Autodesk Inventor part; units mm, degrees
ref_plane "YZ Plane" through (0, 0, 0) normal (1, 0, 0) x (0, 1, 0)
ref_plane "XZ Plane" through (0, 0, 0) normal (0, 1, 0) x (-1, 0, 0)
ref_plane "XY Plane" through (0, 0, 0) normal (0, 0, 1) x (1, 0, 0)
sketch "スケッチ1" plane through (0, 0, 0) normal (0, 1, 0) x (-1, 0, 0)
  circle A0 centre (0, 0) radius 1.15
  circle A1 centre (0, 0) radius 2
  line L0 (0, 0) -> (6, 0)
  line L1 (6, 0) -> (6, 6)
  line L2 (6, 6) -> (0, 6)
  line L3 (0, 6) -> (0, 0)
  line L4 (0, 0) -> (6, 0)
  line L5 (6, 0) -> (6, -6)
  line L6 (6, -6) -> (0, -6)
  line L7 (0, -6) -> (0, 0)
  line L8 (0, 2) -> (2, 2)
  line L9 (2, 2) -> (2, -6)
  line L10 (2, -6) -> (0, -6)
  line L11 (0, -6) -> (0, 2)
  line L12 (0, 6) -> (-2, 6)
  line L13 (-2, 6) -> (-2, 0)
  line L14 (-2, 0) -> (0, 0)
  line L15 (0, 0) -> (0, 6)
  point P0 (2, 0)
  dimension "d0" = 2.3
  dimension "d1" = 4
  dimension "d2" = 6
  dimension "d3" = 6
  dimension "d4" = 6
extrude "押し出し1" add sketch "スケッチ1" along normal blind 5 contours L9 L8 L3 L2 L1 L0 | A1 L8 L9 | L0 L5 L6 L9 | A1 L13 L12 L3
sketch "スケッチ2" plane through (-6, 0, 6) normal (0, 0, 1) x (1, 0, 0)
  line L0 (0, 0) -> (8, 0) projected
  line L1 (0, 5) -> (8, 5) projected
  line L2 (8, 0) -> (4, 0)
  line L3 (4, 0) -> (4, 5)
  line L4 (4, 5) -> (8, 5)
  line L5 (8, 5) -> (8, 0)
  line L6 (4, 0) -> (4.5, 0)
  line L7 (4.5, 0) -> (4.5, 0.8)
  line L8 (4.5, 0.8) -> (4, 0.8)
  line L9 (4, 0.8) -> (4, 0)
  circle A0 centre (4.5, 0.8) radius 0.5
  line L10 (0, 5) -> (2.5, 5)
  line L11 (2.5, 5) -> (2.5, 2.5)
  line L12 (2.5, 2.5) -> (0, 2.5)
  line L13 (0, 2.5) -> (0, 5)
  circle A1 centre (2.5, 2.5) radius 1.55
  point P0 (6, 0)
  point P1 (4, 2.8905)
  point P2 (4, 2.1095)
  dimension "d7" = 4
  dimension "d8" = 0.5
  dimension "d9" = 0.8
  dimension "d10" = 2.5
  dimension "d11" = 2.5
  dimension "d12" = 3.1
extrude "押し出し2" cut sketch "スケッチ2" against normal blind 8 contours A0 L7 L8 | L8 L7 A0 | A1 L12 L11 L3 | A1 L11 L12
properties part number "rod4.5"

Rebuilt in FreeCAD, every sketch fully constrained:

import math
import FreeCAD as App
import Part
import Sketcher
from FreeCAD import Vector
Q = App.Units.Quantity

doc = App.newDocument("Part")
body = doc.addObject("PartDesign::Body", "Body")

# Sketch on XZ plane
sketch1 = doc.addObject("Sketcher::SketchObject", "Sketch")
body.addObject(sketch1)
sketch1.AttachmentSupport = (doc.XZ_Plane, [""])
sketch1.MapMode = "FlatFace"
sketch1.addGeometry([
    Part.LineSegment(Vector(-6, 6, 0), Vector(2, 6, 0)),  # 0
    Part.LineSegment(Vector(2, 6, 0), Vector(2, 0, 0)),  # 1
    Part.ArcOfCircle(Part.Circle(Vector(0, 0, 0), Vector(0, 0, 1), 2), math.radians(0), math.radians(180)),  # 2
    Part.LineSegment(Vector(-2, 0, 0), Vector(-2, -6, 0)),  # 3
    Part.LineSegment(Vector(-2, -6, 0), Vector(-6, -6, 0)),  # 4
    Part.LineSegment(Vector(-6, -6, 0), Vector(-6, 6, 0)),  # 5
], False)
sketch1.addConstraint([
    Sketcher.Constraint("Coincident", 0, 2, 1, 1),
    Sketcher.Constraint("Tangent", 1, 2, 2, 1),
    Sketcher.Constraint("Tangent", 2, 2, 3, 1),
    Sketcher.Constraint("Coincident", 3, 2, 4, 1),
    Sketcher.Constraint("Coincident", 4, 2, 5, 1),
    Sketcher.Constraint("Coincident", 5, 2, 0, 1),
    Sketcher.Constraint("Horizontal", 0),
    Sketcher.Constraint("Vertical", 1),
    Sketcher.Constraint("Vertical", 3),
    Sketcher.Constraint("Horizontal", 4),
    Sketcher.Constraint("Vertical", 5),
    Sketcher.Constraint("Coincident", 2, 3, -1, 1),
    Sketcher.Constraint("Equal", 1, 3),
    Sketcher.Constraint("Radius", 2, Q("2 mm")),
    Sketcher.Constraint("DistanceX", 4, 2, 4, 1, Q("4 mm")),
    Sketcher.Constraint("DistanceY", 1, 2, 1, 1, Q("6 mm")),
])
pad1 = doc.addObject("PartDesign::Pad", "Pad")
body.addObject(pad1)
pad1.Profile = sketch1
pad1.Length = 5
pad1.Reversed = True

# Sketch on XY plane
sketch2 = doc.addObject("Sketcher::SketchObject", "Sketch001")
body.addObject(sketch2)
sketch2.AttachmentSupport = (doc.XY_Plane, [""])
sketch2.MapMode = "FlatFace"
sketch2.AttachmentOffset = App.Placement(Vector(0, 0, 6), App.Rotation())
sketch2.addGeometry([
    Part.Circle(Vector(-1.5, 0.8, 0), Vector(0, 0, 1), 0.5),
    Part.LineSegment(Vector(-2, 2.1, 0), Vector(-2, 2.9, 0)),
    Part.ArcOfCircle(Part.Circle(Vector(-3.5, 2.5, 0), Vector(0, 0, 1), 1.6), math.radians(15), math.radians(345)),
], False)
sketch2.addConstraint([
    Sketcher.Constraint("Coincident", 1, 1, 2, 2),
    Sketcher.Constraint("Coincident", 2, 1, 1, 2),
    Sketcher.Constraint("Vertical", 1),
    Sketcher.Constraint("Diameter", 0, Q("1 mm")),
    Sketcher.Constraint("Radius", 2, Q("1.55 mm")),
    Sketcher.Constraint("DistanceY", -1, 1, 0, 3, Q("0.8 mm")),
    Sketcher.Constraint("DistanceY", -1, 1, 2, 3, Q("2.5 mm")),
    Sketcher.Constraint("DistanceX", 1, 1, 0, 3, Q("0.5 mm")),
    Sketcher.Constraint("DistanceX", 1, 1, -1, 1, Q("2 mm")),
    Sketcher.Constraint("DistanceX", 2, 3, 0, 3, Q("2 mm")),
])
pocket1 = doc.addObject("PartDesign::Pocket", "Pocket")
body.addObject(pocket1)
pocket1.Profile = sketch2
pocket1.Length = 8

doc.recompute()
